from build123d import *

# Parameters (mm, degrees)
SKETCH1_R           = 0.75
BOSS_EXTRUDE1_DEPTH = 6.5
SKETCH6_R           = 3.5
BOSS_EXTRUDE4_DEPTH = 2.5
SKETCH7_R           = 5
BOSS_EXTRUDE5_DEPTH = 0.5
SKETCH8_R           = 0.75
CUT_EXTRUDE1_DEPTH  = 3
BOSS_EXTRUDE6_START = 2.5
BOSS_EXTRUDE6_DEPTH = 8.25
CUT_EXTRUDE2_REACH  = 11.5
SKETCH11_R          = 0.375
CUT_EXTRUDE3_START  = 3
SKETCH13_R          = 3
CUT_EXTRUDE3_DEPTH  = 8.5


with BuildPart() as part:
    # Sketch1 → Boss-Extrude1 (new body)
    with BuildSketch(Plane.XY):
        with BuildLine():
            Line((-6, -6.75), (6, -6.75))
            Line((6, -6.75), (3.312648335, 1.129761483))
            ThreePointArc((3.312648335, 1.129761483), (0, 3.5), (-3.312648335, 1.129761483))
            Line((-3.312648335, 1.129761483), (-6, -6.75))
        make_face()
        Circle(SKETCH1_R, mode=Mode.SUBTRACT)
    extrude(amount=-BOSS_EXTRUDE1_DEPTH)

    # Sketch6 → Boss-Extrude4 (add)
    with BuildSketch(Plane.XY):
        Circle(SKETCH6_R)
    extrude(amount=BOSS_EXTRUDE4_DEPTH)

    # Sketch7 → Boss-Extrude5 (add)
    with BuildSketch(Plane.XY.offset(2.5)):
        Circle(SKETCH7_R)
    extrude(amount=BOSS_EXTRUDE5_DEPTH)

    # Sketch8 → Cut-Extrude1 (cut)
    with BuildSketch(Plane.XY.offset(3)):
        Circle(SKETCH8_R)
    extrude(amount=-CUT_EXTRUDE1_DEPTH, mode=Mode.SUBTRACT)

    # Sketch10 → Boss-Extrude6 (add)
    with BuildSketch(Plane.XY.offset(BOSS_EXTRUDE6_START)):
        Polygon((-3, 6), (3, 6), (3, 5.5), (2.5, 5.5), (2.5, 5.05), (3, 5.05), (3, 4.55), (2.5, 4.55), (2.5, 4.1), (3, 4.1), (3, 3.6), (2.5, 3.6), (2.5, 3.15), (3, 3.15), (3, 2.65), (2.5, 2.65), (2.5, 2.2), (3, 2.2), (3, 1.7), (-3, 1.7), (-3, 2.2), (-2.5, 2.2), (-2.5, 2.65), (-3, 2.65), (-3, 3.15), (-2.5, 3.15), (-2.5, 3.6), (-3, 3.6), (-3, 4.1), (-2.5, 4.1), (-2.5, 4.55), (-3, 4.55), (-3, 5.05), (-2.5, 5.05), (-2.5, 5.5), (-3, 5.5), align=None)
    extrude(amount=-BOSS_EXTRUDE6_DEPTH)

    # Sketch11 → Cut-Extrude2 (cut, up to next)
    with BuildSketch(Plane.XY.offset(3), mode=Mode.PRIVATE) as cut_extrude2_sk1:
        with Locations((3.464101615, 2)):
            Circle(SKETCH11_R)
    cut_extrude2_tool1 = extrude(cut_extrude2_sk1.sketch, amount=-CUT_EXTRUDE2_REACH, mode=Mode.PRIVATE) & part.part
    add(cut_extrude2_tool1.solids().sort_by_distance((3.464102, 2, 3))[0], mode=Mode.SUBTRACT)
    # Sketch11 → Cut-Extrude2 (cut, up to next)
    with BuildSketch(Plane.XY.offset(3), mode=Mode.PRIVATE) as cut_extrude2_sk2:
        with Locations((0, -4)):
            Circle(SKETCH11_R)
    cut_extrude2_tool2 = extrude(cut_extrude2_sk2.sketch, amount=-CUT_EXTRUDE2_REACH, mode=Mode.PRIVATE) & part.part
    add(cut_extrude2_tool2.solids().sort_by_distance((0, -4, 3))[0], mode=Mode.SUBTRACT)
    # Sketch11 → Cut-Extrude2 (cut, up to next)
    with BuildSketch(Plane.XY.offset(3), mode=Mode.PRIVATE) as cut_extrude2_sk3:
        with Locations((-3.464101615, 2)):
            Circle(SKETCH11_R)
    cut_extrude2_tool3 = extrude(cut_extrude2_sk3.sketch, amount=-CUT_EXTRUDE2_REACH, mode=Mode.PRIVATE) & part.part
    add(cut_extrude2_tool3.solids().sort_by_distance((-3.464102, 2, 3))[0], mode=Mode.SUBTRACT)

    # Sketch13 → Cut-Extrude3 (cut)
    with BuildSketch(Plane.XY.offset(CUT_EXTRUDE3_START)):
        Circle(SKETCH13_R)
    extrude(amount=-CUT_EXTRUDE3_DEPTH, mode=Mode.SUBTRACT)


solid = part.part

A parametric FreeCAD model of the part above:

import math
import FreeCAD as App
import Part
import Sketcher

V = App.Vector
Q = App.Units.Quantity


def add_polygon(sketch, points):
    """Adds a closed chain of lines whose ends are joined by coincident constraints."""
    first, n = sketch.GeometryCount, len(points)
    for a, b in zip(points, points[1:] + points[:1]):
        sketch.addGeometry(Part.LineSegment(App.Vector(*a, 0), App.Vector(*b, 0)), False)
    for i in range(n):
        sketch.addConstraint(Sketcher.Constraint("Coincident", first + i, 2, first + (i + 1) % n, 1))

doc = App.newDocument("Part")
body = doc.addObject("PartDesign::Body", "Body")

sketch1 = doc.addObject("Sketcher::SketchObject", "Sketch")
body.addObject(sketch1)
sketch1.AttachmentSupport = (doc.XY_Plane, [""])
sketch1.MapMode = "FlatFace"
sketch1.addGeometry([
    Part.LineSegment(V(-6, -6.8, 0), V(6, -6.8, 0)),
    Part.LineSegment(V(6, -6.8, 0), V(3.3, 1.1, 0)),
    Part.ArcOfCircle(Part.Circle(V(0, 0, 0), V(0, 0, 1), 3.5), math.radians(19), math.radians(161)),
    Part.LineSegment(V(-3.3, 1.1, 0), V(-6, -6.8, 0)),
    Part.Circle(V(0, 0, 0), V(0, 0, 1), 0.8),
], False)
sketch1.addConstraint([
    Sketcher.Constraint("Coincident", 0, 2, 1, 1),
    Sketcher.Constraint("Tangent", 1, 2, 2, 1),
    Sketcher.Constraint("Tangent", 2, 2, 3, 1),
    Sketcher.Constraint("Coincident", 3, 2, 0, 1),
    Sketcher.Constraint("Horizontal", 0),
    Sketcher.Constraint("Coincident", 2, 3, -1, 1),
    Sketcher.Constraint("Coincident", 4, 3, -1, 1),
    Sketcher.Constraint("Horizontal", 1, 2, 2, 2),
    Sketcher.Constraint("Diameter", 4, Q("1.5 mm")),
    Sketcher.Constraint("Radius", 2, Q("3.5 mm")),
    Sketcher.Constraint("DistanceX", 0, 1, 0, 2, Q("12 mm")),
    Sketcher.Constraint("DistanceY", 0, 2, -1, 1, Q("6.75 mm")),
])
pad1 = doc.addObject("PartDesign::Pad", "Pad")
body.addObject(pad1)
pad1.Profile = sketch1
pad1.Length = 6.5
pad1.Reversed = True

sketch2 = doc.addObject("Sketcher::SketchObject", "Sketch001")
body.addObject(sketch2)
sketch2.AttachmentSupport = (doc.XY_Plane, [""])
sketch2.MapMode = "FlatFace"
sketch2.addGeometry(Part.Circle(V(0, 0, 0), V(0, 0, 1), 3.5), False)
sketch2.addConstraint([
    Sketcher.Constraint("Coincident", 0, 3, -1, 1),
    Sketcher.Constraint("Diameter", 0, Q("7 mm")),
])
pad2 = doc.addObject("PartDesign::Pad", "Pad001")
body.addObject(pad2)
pad2.Profile = sketch2
pad2.Length = 2.5

sketch3 = doc.addObject("Sketcher::SketchObject", "Sketch002")
body.addObject(sketch3)
sketch3.AttachmentSupport = (doc.XY_Plane, [""])
sketch3.MapMode = "FlatFace"
sketch3.AttachmentOffset = App.Placement(V(0, 0, 2.5), App.Rotation())
sketch3.addGeometry(Part.Circle(V(0, 0, 0), V(0, 0, 1), 5), False)
sketch3.addConstraint([
    Sketcher.Constraint("Coincident", 0, 3, -1, 1),
    Sketcher.Constraint("Diameter", 0, Q("10 mm")),
])
pad3 = doc.addObject("PartDesign::Pad", "Pad002")
body.addObject(pad3)
pad3.Profile = sketch3
pad3.Length = 0.5

sketch4 = doc.addObject("Sketcher::SketchObject", "Sketch003")
body.addObject(sketch4)
sketch4.AttachmentSupport = (doc.XY_Plane, [""])
sketch4.MapMode = "FlatFace"
sketch4.AttachmentOffset = App.Placement(V(0, 0, 3), App.Rotation())
sketch4.addGeometry(Part.Circle(V(0, 0, 0), V(0, 0, 1), 0.8), False)
sketch4.addConstraint([
    Sketcher.Constraint("Coincident", 0, 3, -1, 1),
    Sketcher.Constraint("Diameter", 0, Q("1.5 mm")),
])
pocket1 = doc.addObject("PartDesign::Pocket", "Pocket")
body.addObject(pocket1)
pocket1.Profile = sketch4
pocket1.Length = 3

sketch5 = doc.addObject("Sketcher::SketchObject", "Sketch004")
body.addObject(sketch5)
sketch5.AttachmentSupport = (doc.XY_Plane, [""])
sketch5.MapMode = "FlatFace"
sketch5.AttachmentOffset = App.Placement(V(0, 0, 2.5), App.Rotation())
add_polygon(sketch5, [(3, 6), (-3, 6), (-3, 5.5), (-2.5, 5.5), (-2.5, 5.05), (-3, 5.05), (-3, 4.55), (-2.5, 4.55), (-2.5, 4.1), (-3, 4.1), (-3, 3.6), (-2.5, 3.6), (-2.5, 3.15), (-3, 3.15), (-3, 2.65), (-2.5, 2.65), (-2.5, 2.2), (-3, 2.2), (-3, 1.7), (3, 1.7), (3, 2.2), (2.5, 2.2), (2.5, 2.65), (3, 2.65), (3, 3.15), (2.5, 3.15), (2.5, 3.6), (3, 3.6), (3, 4.1), (2.5, 4.1), (2.5, 4.55), (3, 4.55), (3, 5.05), (2.5, 5.05), (2.5, 5.5), (3, 5.5)])
sketch5.addConstraint([
    Sketcher.Constraint("Horizontal", 0),
    Sketcher.Constraint("Vertical", 1),
    Sketcher.Constraint("Horizontal", 2),
    Sketcher.Constraint("Vertical", 3),
    Sketcher.Constraint("Horizontal", 4),
    Sketcher.Constraint("Vertical", 5),
    Sketcher.Constraint("Horizontal", 6),
    Sketcher.Constraint("Vertical", 7),
    Sketcher.Constraint("Horizontal", 8),
    Sketcher.Constraint("Vertical", 9),
    Sketcher.Constraint("Horizontal", 10),
    Sketcher.Constraint("Vertical", 11),
    Sketcher.Constraint("Horizontal", 12),
    Sketcher.Constraint("Vertical", 13),
    Sketcher.Constraint("Horizontal", 14),
    Sketcher.Constraint("Vertical", 15),
    Sketcher.Constraint("Horizontal", 16),
    Sketcher.Constraint("Vertical", 17),
    Sketcher.Constraint("Horizontal", 18),
    Sketcher.Constraint("Vertical", 19),
    Sketcher.Constraint("Horizontal", 20),
    Sketcher.Constraint("Vertical", 21),
    Sketcher.Constraint("Horizontal", 22),
    Sketcher.Constraint("Vertical", 23),
    Sketcher.Constraint("Horizontal", 24),
    Sketcher.Constraint("Vertical", 25),
    Sketcher.Constraint("Horizontal", 26),
    Sketcher.Constraint("Vertical", 27),
    Sketcher.Constraint("Horizontal", 28),
    Sketcher.Constraint("Vertical", 29),
    Sketcher.Constraint("Horizontal", 30),
    Sketcher.Constraint("Vertical", 31),
    Sketcher.Constraint("Horizontal", 32),
    Sketcher.Constraint("Vertical", 33),
    Sketcher.Constraint("Horizontal", 34),
    Sketcher.Constraint("Vertical", 35),
    Sketcher.Constraint("Symmetric", 16, 2, 19, 2, -2),
    Sketcher.Constraint("Symmetric", 14, 2, 21, 2, -2),
    Sketcher.Constraint("Symmetric", 12, 2, 23, 2, -2),
    Sketcher.Constraint("Symmetric", 10, 2, 25, 2, -2),
    Sketcher.Constraint("Symmetric", 8, 2, 27, 2, -2),
    Sketcher.Constraint("Symmetric", 6, 2, 29, 2, -2),
    Sketcher.Constraint("Symmetric", 4, 2, 31, 2, -2),
    Sketcher.Constraint("Symmetric", 2, 2, 33, 2, -2),
    Sketcher.Constraint("Vertical", 1, 2, 4, 2),
    Sketcher.Constraint("Vertical", 3, 2, 6, 2),
    Sketcher.Constraint("Vertical", 5, 2, 8, 2),
    Sketcher.Constraint("Vertical", 7, 2, 10, 2),
    Sketcher.Constraint("Vertical", 9, 2, 12, 2),
    Sketcher.Constraint("Vertical", 11, 2, 14, 2),
    Sketcher.Constraint("Vertical", 13, 2, 16, 2),
    Sketcher.Constraint("Vertical", 31, 2, 34, 2),
    Sketcher.Constraint("Equal", 34, 1),
    Sketcher.Constraint("Equal", 1, 5),
    Sketcher.Constraint("Equal", 3, 7),
    Sketcher.Constraint("Equal", 5, 9),
    Sketcher.Constraint("Equal", 7, 11),
    Sketcher.Constraint("Equal", 9, 13),
    Sketcher.Constraint("Equal", 11, 15),
    Sketcher.Constraint("Equal", 13, 17),
    Sketcher.Constraint("DistanceX", 0, 2, 0, 1, Q("6 mm")),
    Sketcher.Constraint("DistanceX", 2, 1, 2, 2, Q("0.5 mm")),
    Sketcher.Constraint("DistanceY", -1, 1, 0, 2, Q("6 mm")),
    Sketcher.Constraint("DistanceY", 3, 2, 3, 1, Q("0.45 mm")),
])
pad4 = doc.addObject("PartDesign::Pad", "Pad003")
body.addObject(pad4)
pad4.Profile = sketch5
pad4.Length = 8.25
pad4.Reversed = True

sketch6 = doc.addObject("Sketcher::SketchObject", "Sketch005")
body.addObject(sketch6)
sketch6.AttachmentSupport = (doc.XY_Plane, [""])
sketch6.MapMode = "FlatFace"
sketch6.AttachmentOffset = App.Placement(V(0, 0, 3), App.Rotation())
sketch6.addGeometry(Part.Circle(V(3.46, 2, 0), V(0, 0, 1), 0.38), False)
sketch6.addConstraint([
    Sketcher.Constraint("Diameter", 0, Q("0.75 mm")),
    Sketcher.Constraint("DistanceY", -1, 1, 0, 3, Q("2 mm")),
    Sketcher.Constraint("DistanceX", -1, 1, 0, 3, Q("3.464102 mm")),
])
pocket2 = doc.addObject("PartDesign::Pocket", "Pocket001")
body.addObject(pocket2)
pocket2.Profile = sketch6
pocket2.Type = "UpToFirst"

sketch7 = doc.addObject("Sketcher::SketchObject", "Sketch006")
body.addObject(sketch7)
sketch7.AttachmentSupport = (doc.XY_Plane, [""])
sketch7.MapMode = "FlatFace"
sketch7.AttachmentOffset = App.Placement(V(0, 0, 3), App.Rotation())
sketch7.addGeometry(Part.Circle(V(0, -4, 0), V(0, 0, 1), 0.38), False)
sketch7.addConstraint([
    Sketcher.Constraint("PointOnObject", 0, 3, -2),
    Sketcher.Constraint("Diameter", 0, Q("0.75 mm")),
    Sketcher.Constraint("DistanceY", 0, 3, -1, 1, Q("4 mm")),
])
pocket3 = doc.addObject("PartDesign::Pocket", "Pocket002")
body.addObject(pocket3)
pocket3.Profile = sketch7
pocket3.Type = "UpToFirst"

sketch8 = doc.addObject("Sketcher::SketchObject", "Sketch007")
body.addObject(sketch8)
sketch8.AttachmentSupport = (doc.XY_Plane, [""])
sketch8.MapMode = "FlatFace"
sketch8.AttachmentOffset = App.Placement(V(0, 0, 3), App.Rotation())
sketch8.addGeometry(Part.Circle(V(-3.46, 2, 0), V(0, 0, 1), 0.38), False)
sketch8.addConstraint([
    Sketcher.Constraint("Diameter", 0, Q("0.75 mm")),
    Sketcher.Constraint("DistanceY", -1, 1, 0, 3, Q("2 mm")),
    Sketcher.Constraint("DistanceX", 0, 3, -1, 1, Q("3.464102 mm")),
])
pocket4 = doc.addObject("PartDesign::Pocket", "Pocket003")
body.addObject(pocket4)
pocket4.Profile = sketch8
pocket4.Type = "UpToFirst"

sketch9 = doc.addObject("Sketcher::SketchObject", "Sketch008")
body.addObject(sketch9)
sketch9.AttachmentSupport = (doc.XY_Plane, [""])
sketch9.MapMode = "FlatFace"
sketch9.AttachmentOffset = App.Placement(V(0, 0, 3), App.Rotation())
sketch9.addGeometry(Part.Circle(V(0, 0, 0), V(0, 0, 1), 3), False)
sketch9.addConstraint([
    Sketcher.Constraint("Coincident", 0, 3, -1, 1),
    Sketcher.Constraint("Diameter", 0, Q("6 mm")),
])
pocket5 = doc.addObject("PartDesign::Pocket", "Pocket004")
body.addObject(pocket5)
pocket5.Profile = sketch9
pocket5.Length = 8.5

doc.recompute()
